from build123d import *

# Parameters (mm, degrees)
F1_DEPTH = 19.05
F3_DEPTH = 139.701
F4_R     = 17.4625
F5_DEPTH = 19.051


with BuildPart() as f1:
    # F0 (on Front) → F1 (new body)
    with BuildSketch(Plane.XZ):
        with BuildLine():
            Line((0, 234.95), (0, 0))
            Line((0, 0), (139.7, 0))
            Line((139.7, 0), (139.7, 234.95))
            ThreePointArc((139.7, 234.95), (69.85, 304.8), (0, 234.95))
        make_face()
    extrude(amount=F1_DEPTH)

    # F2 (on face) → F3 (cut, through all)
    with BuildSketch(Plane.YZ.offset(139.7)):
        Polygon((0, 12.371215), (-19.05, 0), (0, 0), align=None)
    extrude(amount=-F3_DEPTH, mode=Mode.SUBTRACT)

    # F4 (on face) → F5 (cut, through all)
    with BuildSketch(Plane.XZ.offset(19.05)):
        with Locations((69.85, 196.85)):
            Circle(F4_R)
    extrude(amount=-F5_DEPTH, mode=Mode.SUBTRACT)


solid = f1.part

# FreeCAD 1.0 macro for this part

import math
import FreeCAD as App
import Part
import Sketcher
Q = App.Units.Quantity


def add_polygon(sketch, points):
    """Adds a closed chain of lines whose ends are joined by coincident constraints."""
    first, n = sketch.GeometryCount, len(points)
    for a, b in zip(points, points[1:] + points[:1]):
        sketch.addGeometry(Part.LineSegment(App.Vector(*a, 0), App.Vector(*b, 0)), False)
    for i in range(n):
        sketch.addConstraint(Sketcher.Constraint("Coincident", first + i, 2, first + (i + 1) % n, 1))

doc = App.newDocument("Part")
params = doc.addObject("Spreadsheet::Sheet", "Params")
for row, (alias, value) in enumerate([
    ("sketch1_radius", "2.75 in"),
    ("sketch1_height", "9.25 in"),
    ("pad1_length", "0.75 in"),
    ("sketch2_width", "0.75 in"),
    ("sketch3_diameter", "1.375 in"),
], start=1):
    params.set(f"A{row}", alias)
    params.set(f"B{row}", "=" + value)
    params.setAlias(f"B{row}", alias)

body = doc.addObject("PartDesign::Body", "Body")

sketch1 = body.newObject("Sketcher::SketchObject", "Sketch")
sketch1.AttachmentSupport = (doc.getObject("XZ_Plane"), [""])
sketch1.MapMode = "FlatFace"
sketch1.addGeometry(Part.LineSegment(App.Vector(0, 235, 0), App.Vector(0, 0, 0)), False)
sketch1.addGeometry(Part.LineSegment(App.Vector(0, 0, 0), App.Vector(140, 0, 0)), False)
sketch1.addGeometry(Part.LineSegment(App.Vector(140, 0, 0), App.Vector(140, 235, 0)), False)
sketch1.addGeometry(Part.ArcOfCircle(Part.Circle(App.Vector(70, 235, 0), App.Vector(0, 0, 1), 70), math.radians(0), math.radians(180)), False)
sketch1.addConstraint(Sketcher.Constraint("Coincident", 0, 2, 1, 1))
sketch1.addConstraint(Sketcher.Constraint("Coincident", 1, 2, 2, 1))
sketch1.addConstraint(Sketcher.Constraint("Tangent", 2, 2, 3, 1))
sketch1.addConstraint(Sketcher.Constraint("Tangent", 3, 2, 0, 1))
sketch1.addConstraint(Sketcher.Constraint("Vertical", 0))
sketch1.addConstraint(Sketcher.Constraint("Horizontal", 1))
sketch1.addConstraint(Sketcher.Constraint("Vertical", 2))
sketch1.addConstraint(Sketcher.Constraint("Coincident", 0, 2, -1, 1))
sketch1.addConstraint(Sketcher.Constraint("Radius", 3, Q("2.75 in")))
sketch1.addConstraint(Sketcher.Constraint("DistanceY", 0, 2, 0, 1, Q("9.25 in")))
sketch1.setExpression("Constraints[8]", "Params.sketch1_radius")
sketch1.setExpression("Constraints[9]", "Params.sketch1_height")
pad1 = body.newObject("PartDesign::Pad", "Pad")
pad1.Profile = sketch1
pad1.setExpression("Length", "Params.pad1_length")

sketch2 = body.newObject("Sketcher::SketchObject", "Sketch001")
sketch2.AttachmentSupport = (doc.getObject("YZ_Plane"), [""])
sketch2.MapMode = "FlatFace"
sketch2.AttachmentOffset = App.Placement(App.Vector(0, 0, 5.5 * 25.4), App.Rotation())
add_polygon(sketch2, [(0, 12), (-19, 0), (0, 0)])
sketch2.addConstraint(Sketcher.Constraint("Horizontal", 1))
sketch2.addConstraint(Sketcher.Constraint("Vertical", 2))
sketch2.addConstraint(Sketcher.Constraint("Coincident", 1, 2, -1, 1))
sketch2.addConstraint(Sketcher.Constraint("Angle", 0, Q("-146.999999 deg")))
sketch2.addConstraint(Sketcher.Constraint("DistanceX", 1, 1, 1, 2, Q("0.75 in")))
sketch2.setExpression("Constraints[7]", "Params.sketch2_width")
pocket1 = body.newObject("PartDesign::Pocket", "Pocket")
pocket1.Profile = sketch2
pocket1.Type = "ThroughAll"

sketch3 = body.newObject("Sketcher::SketchObject", "Sketch002")
sketch3.AttachmentSupport = (doc.getObject("XZ_Plane"), [""])
sketch3.MapMode = "FlatFace"
sketch3.AttachmentOffset = App.Placement(App.Vector(0, 0, 0.75 * 25.4), App.Rotation())
sketch3.addGeometry(Part.Circle(App.Vector(70, 197, 0), App.Vector(0, 0, 1), 17), False)
sketch3.addConstraint(Sketcher.Constraint("Diameter", 0, Q("1.375 in")))
sketch3.addConstraint(Sketcher.Constraint("DistanceX", -1, 1, 0, 3, Q("2.75 in")))
sketch3.addConstraint(Sketcher.Constraint("DistanceY", -1, 1, 0, 3, Q("7.75 in")))
sketch3.setExpression("Constraints[0]", "Params.sketch3_diameter")
pocket2 = body.newObject("PartDesign::Pocket", "Pocket001")
pocket2.Profile = sketch3
pocket2.Type = "ThroughAll"

doc.recompute()
